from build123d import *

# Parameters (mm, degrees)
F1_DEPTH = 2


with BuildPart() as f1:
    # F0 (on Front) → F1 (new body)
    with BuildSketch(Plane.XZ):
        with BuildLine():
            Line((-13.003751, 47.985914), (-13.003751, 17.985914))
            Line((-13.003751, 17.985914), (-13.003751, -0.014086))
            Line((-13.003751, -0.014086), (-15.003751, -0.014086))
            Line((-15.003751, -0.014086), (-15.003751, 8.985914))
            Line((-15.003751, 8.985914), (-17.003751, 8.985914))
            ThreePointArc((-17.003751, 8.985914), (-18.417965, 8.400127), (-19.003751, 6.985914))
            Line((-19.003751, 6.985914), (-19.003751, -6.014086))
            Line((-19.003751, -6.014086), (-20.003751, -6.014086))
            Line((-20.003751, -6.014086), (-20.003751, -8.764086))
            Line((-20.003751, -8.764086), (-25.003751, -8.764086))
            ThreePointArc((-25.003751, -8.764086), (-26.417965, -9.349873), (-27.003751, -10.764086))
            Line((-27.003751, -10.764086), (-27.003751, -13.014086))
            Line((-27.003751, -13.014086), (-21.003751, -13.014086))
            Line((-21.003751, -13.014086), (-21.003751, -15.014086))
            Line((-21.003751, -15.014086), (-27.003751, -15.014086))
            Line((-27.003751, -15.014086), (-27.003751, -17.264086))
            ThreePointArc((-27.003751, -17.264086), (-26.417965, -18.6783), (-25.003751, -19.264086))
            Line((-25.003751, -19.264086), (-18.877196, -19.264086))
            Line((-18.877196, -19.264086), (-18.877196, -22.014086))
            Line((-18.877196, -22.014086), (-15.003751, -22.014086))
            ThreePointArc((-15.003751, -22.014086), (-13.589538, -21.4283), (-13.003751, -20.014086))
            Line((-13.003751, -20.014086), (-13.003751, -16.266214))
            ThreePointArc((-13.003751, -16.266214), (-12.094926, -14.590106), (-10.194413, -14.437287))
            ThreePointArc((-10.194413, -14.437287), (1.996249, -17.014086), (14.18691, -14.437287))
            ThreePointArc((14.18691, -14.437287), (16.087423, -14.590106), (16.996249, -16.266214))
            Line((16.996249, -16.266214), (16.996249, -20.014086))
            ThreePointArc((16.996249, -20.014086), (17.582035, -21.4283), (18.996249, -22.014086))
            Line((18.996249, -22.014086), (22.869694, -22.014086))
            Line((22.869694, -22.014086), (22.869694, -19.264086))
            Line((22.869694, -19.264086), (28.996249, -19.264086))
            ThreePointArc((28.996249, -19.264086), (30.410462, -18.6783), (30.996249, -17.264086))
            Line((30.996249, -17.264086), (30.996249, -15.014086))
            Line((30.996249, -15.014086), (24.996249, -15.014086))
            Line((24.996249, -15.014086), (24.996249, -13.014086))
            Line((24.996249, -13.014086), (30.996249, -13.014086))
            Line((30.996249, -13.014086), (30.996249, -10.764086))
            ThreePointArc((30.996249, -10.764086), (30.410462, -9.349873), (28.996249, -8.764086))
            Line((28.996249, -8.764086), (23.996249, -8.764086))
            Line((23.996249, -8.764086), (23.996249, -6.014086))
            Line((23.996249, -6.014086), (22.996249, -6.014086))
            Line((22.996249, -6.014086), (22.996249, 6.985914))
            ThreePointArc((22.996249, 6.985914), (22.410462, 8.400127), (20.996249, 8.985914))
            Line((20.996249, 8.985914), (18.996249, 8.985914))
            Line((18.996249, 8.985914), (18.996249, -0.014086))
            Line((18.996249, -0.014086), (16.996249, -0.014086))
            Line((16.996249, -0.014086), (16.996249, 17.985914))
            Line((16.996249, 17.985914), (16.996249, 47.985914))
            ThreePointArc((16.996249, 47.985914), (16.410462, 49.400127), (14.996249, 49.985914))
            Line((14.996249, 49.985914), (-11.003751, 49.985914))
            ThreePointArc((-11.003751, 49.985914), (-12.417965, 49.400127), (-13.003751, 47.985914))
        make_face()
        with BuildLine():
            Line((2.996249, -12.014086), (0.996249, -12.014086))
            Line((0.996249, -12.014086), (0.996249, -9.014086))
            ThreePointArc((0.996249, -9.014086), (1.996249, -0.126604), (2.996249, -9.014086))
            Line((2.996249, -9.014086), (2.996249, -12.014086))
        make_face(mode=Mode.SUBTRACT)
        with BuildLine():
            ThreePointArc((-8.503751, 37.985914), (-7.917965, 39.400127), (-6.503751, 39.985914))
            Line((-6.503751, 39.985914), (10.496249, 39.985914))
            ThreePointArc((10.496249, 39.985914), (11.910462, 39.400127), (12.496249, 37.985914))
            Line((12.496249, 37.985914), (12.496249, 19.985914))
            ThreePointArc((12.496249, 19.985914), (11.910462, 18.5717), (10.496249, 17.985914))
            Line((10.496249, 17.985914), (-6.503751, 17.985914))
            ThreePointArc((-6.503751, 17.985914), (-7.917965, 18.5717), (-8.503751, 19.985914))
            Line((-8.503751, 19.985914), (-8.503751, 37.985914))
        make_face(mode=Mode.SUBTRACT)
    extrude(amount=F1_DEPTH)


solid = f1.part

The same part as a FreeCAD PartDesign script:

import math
import FreeCAD as App
import Part
import Sketcher

doc = App.newDocument("Part")
body = doc.addObject("PartDesign::Body", "Body")

sketch1 = body.newObject("Sketcher::SketchObject", "Sketch")
sketch1.AttachmentSupport = (doc.getObject("XZ_Plane"), [""])
sketch1.MapMode = "FlatFace"
sketch1.addGeometry([
    Part.LineSegment(App.Vector(-13, 48, 0), App.Vector(-13, 0, 0)),
    Part.LineSegment(App.Vector(-13, 0, 0), App.Vector(-15, 0, 0)),
    Part.LineSegment(App.Vector(-15, 0, 0), App.Vector(-15, 9, 0)),
    Part.LineSegment(App.Vector(-15, 9, 0), App.Vector(-17, 9, 0)),
    Part.ArcOfCircle(Part.Circle(App.Vector(-17, 7, 0), App.Vector(0, 0, 1), 2), math.radians(90), math.radians(180)),
    Part.LineSegment(App.Vector(-19, 7, 0), App.Vector(-19, -6, 0)),
    Part.LineSegment(App.Vector(-19, -6, 0), App.Vector(-20, -6, 0)),
    Part.LineSegment(App.Vector(-20, -6, 0), App.Vector(-20, -8.8, 0)),
    Part.LineSegment(App.Vector(-20, -8.8, 0), App.Vector(-25, -8.8, 0)),
    Part.ArcOfCircle(Part.Circle(App.Vector(-25, -10.8, 0), App.Vector(0, 0, 1), 2), math.radians(90), math.radians(180)),
    Part.LineSegment(App.Vector(-27, -10.8, 0), App.Vector(-27, -13, 0)),
    Part.LineSegment(App.Vector(-27, -13, 0), App.Vector(-21, -13, 0)),
    Part.LineSegment(App.Vector(-21, -13, 0), App.Vector(-21, -15, 0)),
    Part.LineSegment(App.Vector(-21, -15, 0), App.Vector(-27, -15, 0)),
    Part.LineSegment(App.Vector(-27, -15, 0), App.Vector(-27, -17.3, 0)),
    Part.ArcOfCircle(Part.Circle(App.Vector(-25, -17.3, 0), App.Vector(0, 0, 1), 2), math.radians(180), math.radians(270)),
    Part.LineSegment(App.Vector(-25, -19.3, 0), App.Vector(-18.9, -19.3, 0)),
    Part.LineSegment(App.Vector(-18.9, -19.3, 0), App.Vector(-18.9, -22, 0)),
    Part.LineSegment(App.Vector(-18.9, -22, 0), App.Vector(-15, -22, 0)),
    Part.ArcOfCircle(Part.Circle(App.Vector(-15, -20, 0), App.Vector(0, 0, 1), 2), math.radians(-90), math.radians(0)),
    Part.LineSegment(App.Vector(-13, -20, 0), App.Vector(-13, -16.3, 0)),
    Part.ArcOfCircle(Part.Circle(App.Vector(-11, -16.3, 0), App.Vector(0, 0, 1), 2), math.radians(66), math.radians(180)),
    Part.ArcOfCircle(Part.Circle(App.Vector(2, 13.1, 0), App.Vector(0, 0, 1), 30.1), math.radians(-114), math.radians(-66)),
    Part.ArcOfCircle(Part.Circle(App.Vector(15, -16.3, 0), App.Vector(0, 0, 1), 2), math.radians(0), math.radians(114)),
    Part.LineSegment(App.Vector(17, -16.3, 0), App.Vector(17, -20, 0)),
    Part.ArcOfCircle(Part.Circle(App.Vector(19, -20, 0), App.Vector(0, 0, 1), 2), math.radians(180), math.radians(270)),
    Part.LineSegment(App.Vector(19, -22, 0), App.Vector(22.9, -22, 0)),
    Part.LineSegment(App.Vector(22.9, -22, 0), App.Vector(22.9, -19.3, 0)),
    Part.LineSegment(App.Vector(22.9, -19.3, 0), App.Vector(29, -19.3, 0)),
    Part.ArcOfCircle(Part.Circle(App.Vector(29, -17.3, 0), App.Vector(0, 0, 1), 2), math.radians(-90), math.radians(0)),
    Part.LineSegment(App.Vector(31, -17.3, 0), App.Vector(31, -15, 0)),
    Part.LineSegment(App.Vector(31, -15, 0), App.Vector(25, -15, 0)),
    Part.LineSegment(App.Vector(25, -15, 0), App.Vector(25, -13, 0)),
    Part.LineSegment(App.Vector(25, -13, 0), App.Vector(31, -13, 0)),
    Part.LineSegment(App.Vector(31, -13, 0), App.Vector(31, -10.8, 0)),
    Part.ArcOfCircle(Part.Circle(App.Vector(29, -10.8, 0), App.Vector(0, 0, 1), 2), math.radians(0), math.radians(90)),
    Part.LineSegment(App.Vector(29, -8.8, 0), App.Vector(24, -8.8, 0)),
    Part.LineSegment(App.Vector(24, -8.8, 0), App.Vector(24, -6, 0)),
    Part.LineSegment(App.Vector(24, -6, 0), App.Vector(23, -6, 0)),
    Part.LineSegment(App.Vector(23, -6, 0), App.Vector(23, 7, 0)),
    Part.ArcOfCircle(Part.Circle(App.Vector(21, 7, 0), App.Vector(0, 0, 1), 2), math.radians(0), math.radians(90)),
    Part.LineSegment(App.Vector(21, 9, 0), App.Vector(19, 9, 0)),
    Part.LineSegment(App.Vector(19, 9, 0), App.Vector(19, 0, 0)),
    Part.LineSegment(App.Vector(19, 0, 0), App.Vector(17, 0, 0)),
    Part.LineSegment(App.Vector(17, 0, 0), App.Vector(17, 48, 0)),
    Part.ArcOfCircle(Part.Circle(App.Vector(15, 48, 0), App.Vector(0, 0, 1), 2), math.radians(0), math.radians(90)),
    Part.LineSegment(App.Vector(15, 50, 0), App.Vector(-11, 50, 0)),
    Part.ArcOfCircle(Part.Circle(App.Vector(-11, 48, 0), App.Vector(0, 0, 1), 2), math.radians(90), math.radians(180)),
    Part.LineSegment(App.Vector(3, -9, 0), App.Vector(3, -12, 0)),
    Part.LineSegment(App.Vector(3, -12, 0), App.Vector(1, -12, 0)),
    Part.LineSegment(App.Vector(1, -12, 0), App.Vector(1, -9, 0)),
    Part.ArcOfCircle(Part.Circle(App.Vector(2, -4.6, 0), App.Vector(0, 0, 1), 4.5), math.radians(-77), math.radians(257)),
    Part.LineSegment(App.Vector(-8.5, 20, 0), App.Vector(-8.5, 38, 0)),
    Part.ArcOfCircle(Part.Circle(App.Vector(-6.5, 38, 0), App.Vector(0, 0, 1), 2), math.radians(90), math.radians(180)),
    Part.LineSegment(App.Vector(-6.5, 40, 0), App.Vector(10.5, 40, 0)),
    Part.ArcOfCircle(Part.Circle(App.Vector(10.5, 38, 0), App.Vector(0, 0, 1), 2), math.radians(0), math.radians(90)),
    Part.LineSegment(App.Vector(12.5, 38, 0), App.Vector(12.5, 20, 0)),
    Part.ArcOfCircle(Part.Circle(App.Vector(10.5, 20, 0), App.Vector(0, 0, 1), 2), math.radians(-90), math.radians(0)),
    Part.LineSegment(App.Vector(10.5, 18, 0), App.Vector(-6.5, 18, 0)),
    Part.ArcOfCircle(Part.Circle(App.Vector(-6.5, 20, 0), App.Vector(0, 0, 1), 2), math.radians(180), math.radians(270)),
], False)
sketch1.addConstraint([
    Sketcher.Constraint("Coincident", 0, 2, 1, 1),
    Sketcher.Constraint("Coincident", 1, 2, 2, 1),
    Sketcher.Constraint("Coincident", 2, 2, 3, 1),
    Sketcher.Constraint("Tangent", 3, 2, 4, 1),
    Sketcher.Constraint("Tangent", 4, 2, 5, 1),
    Sketcher.Constraint("Coincident", 5, 2, 6, 1),
    Sketcher.Constraint("Coincident", 6, 2, 7, 1),
    Sketcher.Constraint("Coincident", 7, 2, 8, 1),
    Sketcher.Constraint("Tangent", 8, 2, 9, 1),
    Sketcher.Constraint("Tangent", 9, 2, 10, 1),
    Sketcher.Constraint("Coincident", 10, 2, 11, 1),
    Sketcher.Constraint("Coincident", 11, 2, 12, 1),
    Sketcher.Constraint("Coincident", 12, 2, 13, 1),
    Sketcher.Constraint("Coincident", 13, 2, 14, 1),
    Sketcher.Constraint("Tangent", 14, 2, 15, 1),
    Sketcher.Constraint("Tangent", 15, 2, 16, 1),
    Sketcher.Constraint("Coincident", 16, 2, 17, 1),
    Sketcher.Constraint("Coincident", 17, 2, 18, 1),
    Sketcher.Constraint("Tangent", 18, 2, 19, 1),
    Sketcher.Constraint("Tangent", 19, 2, 20, 1),
    Sketcher.Constraint("Tangent", 20, 2, 21, 2),
    Sketcher.Constraint("Tangent", 21, 1, 22, 1),
    Sketcher.Constraint("Tangent", 22, 2, 23, 2),
    Sketcher.Constraint("Tangent", 23, 1, 24, 1),
    Sketcher.Constraint("Tangent", 24, 2, 25, 1),
    Sketcher.Constraint("Tangent", 25, 2, 26, 1),
    Sketcher.Constraint("Coincident", 26, 2, 27, 1),
    Sketcher.Constraint("Coincident", 27, 2, 28, 1),
    Sketcher.Constraint("Tangent", 28, 2, 29, 1),
    Sketcher.Constraint("Tangent", 29, 2, 30, 1),
    Sketcher.Constraint("Coincident", 30, 2, 31, 1),
    Sketcher.Constraint("Coincident", 31, 2, 32, 1),
    Sketcher.Constraint("Coincident", 32, 2, 33, 1),
    Sketcher.Constraint("Coincident", 33, 2, 34, 1),
    Sketcher.Constraint("Tangent", 34, 2, 35, 1),
    Sketcher.Constraint("Tangent", 35, 2, 36, 1),
    Sketcher.Constraint("Coincident", 36, 2, 37, 1),
    Sketcher.Constraint("Coincident", 37, 2, 38, 1),
    Sketcher.Constraint("Coincident", 38, 2, 39, 1),
    Sketcher.Constraint("Tangent", 39, 2, 40, 1),
    Sketcher.Constraint("Tangent", 40, 2, 41, 1),
    Sketcher.Constraint("Coincident", 41, 2, 42, 1),
    Sketcher.Constraint("Coincident", 42, 2, 43, 1),
    Sketcher.Constraint("Coincident", 43, 2, 44, 1),
    Sketcher.Constraint("Tangent", 44, 2, 45, 1),
    Sketcher.Constraint("Tangent", 45, 2, 46, 1),
    Sketcher.Constraint("Tangent", 46, 2, 47, 1),
    Sketcher.Constraint("Tangent", 47, 2, 0, 1),
    Sketcher.Constraint("Coincident", 48, 2, 49, 1),
    Sketcher.Constraint("Coincident", 49, 2, 50, 1),
    Sketcher.Constraint("Coincident", 50, 2, 51, 2),
    Sketcher.Constraint("Coincident", 51, 1, 48, 1),
    Sketcher.Constraint("Tangent", 52, 2, 53, 2),
    Sketcher.Constraint("Tangent", 53, 1, 54, 1),
    Sketcher.Constraint("Tangent", 54, 2, 55, 2),
    Sketcher.Constraint("Tangent", 55, 1, 56, 1),
    Sketcher.Constraint("Tangent", 56, 2, 57, 2),
    Sketcher.Constraint("Tangent", 57, 1, 58, 1),
    Sketcher.Constraint("Tangent", 58, 2, 59, 2),
    Sketcher.Constraint("Tangent", 59, 1, 52, 1),
    Sketcher.Constraint("Vertical", 0),
    Sketcher.Constraint("Horizontal", 1),
    Sketcher.Constraint("Vertical", 2),
    Sketcher.Constraint("Horizontal", 3),
    Sketcher.Constraint("Vertical", 5),
    Sketcher.Constraint("Horizontal", 6),
    Sketcher.Constraint("Vertical", 7),
    Sketcher.Constraint("Horizontal", 8),
    Sketcher.Constraint("Vertical", 10),
    Sketcher.Constraint("Horizontal", 11),
    Sketcher.Constraint("Vertical", 12),
    Sketcher.Constraint("Horizontal", 13),
    Sketcher.Constraint("Vertical", 14),
    Sketcher.Constraint("Horizontal", 16),
    Sketcher.Constraint("Vertical", 17),
    Sketcher.Constraint("Horizontal", 18),
    Sketcher.Constraint("Vertical", 20),
    Sketcher.Constraint("Vertical", 24),
    Sketcher.Constraint("Horizontal", 26),
    Sketcher.Constraint("Vertical", 27),
    Sketcher.Constraint("Horizontal", 28),
    Sketcher.Constraint("Vertical", 30),
    Sketcher.Constraint("Horizontal", 31),
    Sketcher.Constraint("Vertical", 32),
    Sketcher.Constraint("Horizontal", 33),
    Sketcher.Constraint("Vertical", 34),
    Sketcher.Constraint("Horizontal", 36),
    Sketcher.Constraint("Vertical", 37),
    Sketcher.Constraint("Horizontal", 38),
    Sketcher.Constraint("Vertical", 39),
    Sketcher.Constraint("Horizontal", 41),
    Sketcher.Constraint("Vertical", 42),
    Sketcher.Constraint("Horizontal", 43),
    Sketcher.Constraint("Vertical", 44),
    Sketcher.Constraint("Horizontal", 46),
    Sketcher.Constraint("Vertical", 48),
    Sketcher.Constraint("Horizontal", 49),
    Sketcher.Constraint("Vertical", 50),
    Sketcher.Constraint("Vertical", 52),
    Sketcher.Constraint("Horizontal", 54),
    Sketcher.Constraint("Vertical", 56),
    Sketcher.Constraint("Horizontal", 58),
    Sketcher.Constraint("Equal", 4, 9),
    Sketcher.Constraint("Equal", 9, 15),
    Sketcher.Constraint("Equal", 15, 19),
    Sketcher.Constraint("Equal", 19, 21),
    Sketcher.Constraint("Equal", 21, 23),
    Sketcher.Constraint("Equal", 21, 25),
    Sketcher.Constraint("Equal", 25, 29),
    Sketcher.Constraint("Equal", 29, 35),
    Sketcher.Constraint("Equal", 35, 40),
    Sketcher.Constraint("Equal", 40, 45),
    Sketcher.Constraint("Equal", 45, 47),
    Sketcher.Constraint("Equal", 47, 53),
    Sketcher.Constraint("Equal", 53, 55),
    Sketcher.Constraint("Equal", 55, 57),
    Sketcher.Constraint("Equal", 57, 59),
    Sketcher.Constraint("Horizontal", 21, 3, 23, 3),
    Sketcher.Constraint("Horizontal", 19, 3, 25, 3),
    Sketcher.Constraint("Horizontal", 15, 3, 29, 3),
    Sketcher.Constraint("Horizontal", 9, 3, 35, 3),
    Sketcher.Constraint("Horizontal", 4, 3, 40, 3),
    Sketcher.Constraint("Horizontal", 13, 2, 30, 2),
    Sketcher.Constraint("Horizontal", 11, 2, 32, 2),
    Sketcher.Constraint("Horizontal", 6, 2, 37, 2),
    Sketcher.Constraint("Horizontal", 1, 2, 42, 2),
    Sketcher.Constraint("Horizontal", 50, 2, 51, 1),
    Sketcher.Constraint("Vertical", 9, 3, 15, 3),
    Sketcher.Constraint("Vertical", 29, 3, 35, 3),
    Sketcher.Constraint("Vertical", 23, 3, 45, 3),
    Sketcher.Constraint("Vertical", 21, 3, 47, 3),
    Sketcher.Constraint("Vertical", 22, 3, 51, 3),
    Sketcher.Constraint("Vertical", 19, 3, 1, 2),
    Sketcher.Constraint("Vertical", 25, 2, 41, 2),
    Sketcher.Constraint("Equal", 1, 3),
    Sketcher.Constraint("Equal", 18, 26),
    Sketcher.Constraint("Equal", 16, 28),
    Sketcher.Constraint("Equal", 13, 31),
    Sketcher.Constraint("Equal", 8, 36),
    Sketcher.Constraint("Equal", 6, 38),
    Sketcher.Constraint("Equal", 43, 49),
    Sketcher.Constraint("Equal", 49, 12),
    Sketcher.Constraint("Equal", 10, 14),
    Sketcher.Constraint("Equal", 7, 17),
    Sketcher.Constraint("Radius", 4, 2.0),
    Sketcher.Constraint("Radius", 51, 4.5),
    Sketcher.Constraint("DistanceX", 6, 2, 6, 1, 1.0),
    Sketcher.Constraint("DistanceX", 8, 2, 8, 1, 5.0),
    Sketcher.Constraint("DistanceX", 11, 1, 11, 2, 6.0),
    Sketcher.Constraint("DistanceX", 46, 2, 46, 1, 26.0),
    Sketcher.Constraint("DistanceX", 54, 1, 54, 2, 17.0),
    Sketcher.Constraint("DistanceY", 0, 2, 0, 1, 48.0),
    Sketcher.Constraint("DistanceY", 2, 1, 2, 2, 9.0),
    Sketcher.Constraint("DistanceY", 5, 2, 5, 1, 13.0),
    Sketcher.Constraint("DistanceY", 48, 2, 48, 1, 3.0),
    Sketcher.Constraint("DistanceY", 52, 1, 52, 2, 18.0),
    Sketcher.Constraint("DistanceY", 7, 2, 7, 1, 2.75),
    Sketcher.Constraint("DistanceY", 10, 2, 10, 1, 2.25),
    Sketcher.Constraint("Radius", 22, 30.124996),
    Sketcher.Constraint("DistanceY", 20, 1, 20, 2, 3.747872),
    Sketcher.Constraint("DistanceX", 16, 1, 16, 2, 6.126555),
    Sketcher.Constraint("DistanceX", 4, 3, -1, 1, 17.003751),
    Sketcher.Constraint("DistanceY", -1, 1, 22, 3, 13.11091),
    Sketcher.Constraint("DistanceX", 53, 3, -1, 1, 6.503751),
    Sketcher.Constraint("DistanceY", 51, 3, -1, 1, 4.626604),
    Sketcher.Constraint("DistanceY", -1, 1, 53, 3, 37.985914),
])
pad1 = body.newObject("PartDesign::Pad", "Pad")
pad1.Profile = sketch1
pad1.Length = 2

doc.recompute()
